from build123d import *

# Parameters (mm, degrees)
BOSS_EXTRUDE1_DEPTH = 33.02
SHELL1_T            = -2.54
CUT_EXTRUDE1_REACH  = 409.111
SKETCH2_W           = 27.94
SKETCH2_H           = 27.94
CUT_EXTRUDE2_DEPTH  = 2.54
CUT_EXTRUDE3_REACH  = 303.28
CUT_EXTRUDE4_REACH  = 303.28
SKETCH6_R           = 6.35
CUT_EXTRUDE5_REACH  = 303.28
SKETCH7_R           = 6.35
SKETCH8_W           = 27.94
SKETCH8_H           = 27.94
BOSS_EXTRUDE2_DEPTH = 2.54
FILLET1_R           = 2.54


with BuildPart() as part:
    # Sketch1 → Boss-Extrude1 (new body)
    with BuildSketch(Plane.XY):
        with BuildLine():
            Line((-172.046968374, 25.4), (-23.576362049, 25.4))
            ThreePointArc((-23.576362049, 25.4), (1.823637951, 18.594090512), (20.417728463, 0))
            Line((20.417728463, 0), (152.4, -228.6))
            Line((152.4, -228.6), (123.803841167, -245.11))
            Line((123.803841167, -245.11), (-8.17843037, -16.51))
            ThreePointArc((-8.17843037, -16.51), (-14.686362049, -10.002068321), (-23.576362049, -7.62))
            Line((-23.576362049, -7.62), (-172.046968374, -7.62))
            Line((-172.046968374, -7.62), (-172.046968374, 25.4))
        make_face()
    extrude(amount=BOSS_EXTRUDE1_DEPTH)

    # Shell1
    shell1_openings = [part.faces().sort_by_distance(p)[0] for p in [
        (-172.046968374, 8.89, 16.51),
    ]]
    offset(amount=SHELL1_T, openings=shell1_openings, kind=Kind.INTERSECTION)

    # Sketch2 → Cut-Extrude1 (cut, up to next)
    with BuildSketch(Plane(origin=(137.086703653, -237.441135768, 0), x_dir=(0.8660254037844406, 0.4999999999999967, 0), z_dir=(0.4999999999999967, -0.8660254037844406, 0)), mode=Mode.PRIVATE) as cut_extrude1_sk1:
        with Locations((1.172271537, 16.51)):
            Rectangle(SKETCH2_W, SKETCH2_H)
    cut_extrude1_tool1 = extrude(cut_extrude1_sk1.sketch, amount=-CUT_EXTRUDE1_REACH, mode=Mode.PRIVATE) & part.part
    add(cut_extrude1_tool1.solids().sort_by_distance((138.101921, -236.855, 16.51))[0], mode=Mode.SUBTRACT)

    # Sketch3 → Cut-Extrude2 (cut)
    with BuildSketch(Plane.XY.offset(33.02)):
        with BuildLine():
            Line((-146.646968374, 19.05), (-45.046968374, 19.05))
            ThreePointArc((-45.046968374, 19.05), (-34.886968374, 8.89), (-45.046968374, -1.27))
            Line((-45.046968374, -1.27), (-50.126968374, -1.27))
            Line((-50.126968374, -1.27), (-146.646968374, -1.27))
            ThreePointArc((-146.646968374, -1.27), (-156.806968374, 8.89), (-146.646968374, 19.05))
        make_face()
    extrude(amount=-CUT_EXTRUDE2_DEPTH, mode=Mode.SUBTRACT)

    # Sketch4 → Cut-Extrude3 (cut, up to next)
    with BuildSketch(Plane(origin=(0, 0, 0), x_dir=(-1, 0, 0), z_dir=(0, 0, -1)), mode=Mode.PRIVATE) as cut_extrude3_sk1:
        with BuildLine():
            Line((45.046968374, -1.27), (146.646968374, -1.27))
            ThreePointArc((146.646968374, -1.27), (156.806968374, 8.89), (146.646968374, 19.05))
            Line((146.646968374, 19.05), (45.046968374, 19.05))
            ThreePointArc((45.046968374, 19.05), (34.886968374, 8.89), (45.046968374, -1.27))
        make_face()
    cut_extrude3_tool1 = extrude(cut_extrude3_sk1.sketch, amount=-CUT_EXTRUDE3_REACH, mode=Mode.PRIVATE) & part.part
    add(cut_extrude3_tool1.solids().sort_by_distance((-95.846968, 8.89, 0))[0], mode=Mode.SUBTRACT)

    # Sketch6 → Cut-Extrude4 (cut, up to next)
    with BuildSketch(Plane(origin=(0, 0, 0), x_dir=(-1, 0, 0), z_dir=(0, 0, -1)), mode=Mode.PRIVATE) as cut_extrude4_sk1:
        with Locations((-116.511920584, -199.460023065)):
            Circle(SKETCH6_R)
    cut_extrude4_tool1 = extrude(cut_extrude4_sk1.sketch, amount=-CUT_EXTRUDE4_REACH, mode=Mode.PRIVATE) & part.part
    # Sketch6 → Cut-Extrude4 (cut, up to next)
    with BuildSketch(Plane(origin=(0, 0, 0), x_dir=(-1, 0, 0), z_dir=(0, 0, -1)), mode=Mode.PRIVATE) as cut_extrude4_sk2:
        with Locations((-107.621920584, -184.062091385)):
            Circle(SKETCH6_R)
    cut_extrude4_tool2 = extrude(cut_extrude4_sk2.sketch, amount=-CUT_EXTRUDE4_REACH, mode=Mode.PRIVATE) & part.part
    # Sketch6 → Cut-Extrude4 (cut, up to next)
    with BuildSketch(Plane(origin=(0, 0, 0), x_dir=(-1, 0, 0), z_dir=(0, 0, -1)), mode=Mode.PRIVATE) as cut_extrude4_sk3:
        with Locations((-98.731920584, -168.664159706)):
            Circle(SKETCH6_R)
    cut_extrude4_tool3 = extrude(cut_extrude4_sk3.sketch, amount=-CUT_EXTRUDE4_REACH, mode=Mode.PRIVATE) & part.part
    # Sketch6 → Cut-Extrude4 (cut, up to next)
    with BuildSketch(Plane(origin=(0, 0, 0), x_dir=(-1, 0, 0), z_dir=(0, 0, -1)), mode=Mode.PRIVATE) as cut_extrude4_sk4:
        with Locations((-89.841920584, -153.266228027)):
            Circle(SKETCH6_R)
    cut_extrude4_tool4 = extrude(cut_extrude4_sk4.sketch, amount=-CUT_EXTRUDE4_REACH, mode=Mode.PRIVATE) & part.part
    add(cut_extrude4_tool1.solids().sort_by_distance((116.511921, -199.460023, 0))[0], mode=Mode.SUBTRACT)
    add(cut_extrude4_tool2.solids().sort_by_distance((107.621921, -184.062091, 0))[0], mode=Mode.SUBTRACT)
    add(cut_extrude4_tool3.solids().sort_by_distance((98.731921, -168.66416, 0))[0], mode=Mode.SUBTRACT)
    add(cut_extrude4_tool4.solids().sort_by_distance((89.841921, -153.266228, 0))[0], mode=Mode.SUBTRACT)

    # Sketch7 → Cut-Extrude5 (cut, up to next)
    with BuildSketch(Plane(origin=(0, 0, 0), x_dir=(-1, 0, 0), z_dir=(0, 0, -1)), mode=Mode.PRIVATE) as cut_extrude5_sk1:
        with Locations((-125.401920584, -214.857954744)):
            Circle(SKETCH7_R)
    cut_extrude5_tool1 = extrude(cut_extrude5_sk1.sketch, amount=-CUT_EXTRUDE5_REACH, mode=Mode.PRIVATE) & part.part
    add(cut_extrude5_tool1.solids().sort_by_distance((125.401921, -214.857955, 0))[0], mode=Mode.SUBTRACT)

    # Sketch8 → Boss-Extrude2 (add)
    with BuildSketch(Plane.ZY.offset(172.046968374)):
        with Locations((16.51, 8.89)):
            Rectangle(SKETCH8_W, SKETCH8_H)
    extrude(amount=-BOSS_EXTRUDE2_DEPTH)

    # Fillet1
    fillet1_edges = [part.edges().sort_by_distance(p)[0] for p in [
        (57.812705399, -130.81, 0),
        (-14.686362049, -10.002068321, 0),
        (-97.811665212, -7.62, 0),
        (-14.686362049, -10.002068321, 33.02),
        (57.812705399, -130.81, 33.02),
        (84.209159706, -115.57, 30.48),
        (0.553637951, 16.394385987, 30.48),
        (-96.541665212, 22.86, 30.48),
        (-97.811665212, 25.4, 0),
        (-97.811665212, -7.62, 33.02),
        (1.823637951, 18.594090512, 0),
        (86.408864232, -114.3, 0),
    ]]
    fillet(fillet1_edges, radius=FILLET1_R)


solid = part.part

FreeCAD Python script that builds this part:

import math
import FreeCAD as App
import Part
import Sketcher
Q = App.Units.Quantity


def edges_at(feature, points):
    """Names of the edges that pass closest to the given points."""
    edges = feature.Shape.Edges
    near = lambda p: min(range(len(edges)), key=lambda i: edges[i].distToShape(Part.Vertex(*p))[0])
    return sorted({f"Edge{near(p) + 1}" for p in points})


def faces_at(feature, points):
    """Names of the faces that lie closest to the given points."""
    faces = feature.Shape.Faces
    near = lambda p: min(range(len(faces)), key=lambda i: faces[i].distToShape(Part.Vertex(*p))[0])
    return sorted({f"Face{near(p) + 1}" for p in points})

doc = App.newDocument("Part")
params = doc.addObject("Spreadsheet::Sheet", "Params")
for row, (alias, value) in enumerate([
    ("sketch1_radius", "2 in"),
    ("sketch1_radius2", "0.7 in"),
    ("pad1_length", "1.3 in"),
    ("thickness_wall", "0.1 in"),
    ("sketch2_width", "1.1 in"),
    ("sketch3_radius", "0.4 in"),
    ("sketch3_width", "4 in"),
    ("pocket2_length", "0.1 in"),
    ("sketch4_radius", "0.4 in"),
    ("sketch4_width", "4 in"),
    ("sketch5_diameter", "0.5 in"),
    ("sketch6_diameter", "0.5 in"),
    ("sketch7_diameter", "0.5 in"),
    ("sketch8_diameter", "0.5 in"),
    ("sketch9_diameter", "0.5 in"),
    ("sketch10_width", "1.1 in"),
    ("pad2_length", "0.1 in"),
    ("fillet_radius", "0.1 in"),
], start=1):
    params.set(f"A{row}", alias)
    params.set(f"B{row}", "=" + value)
    params.setAlias(f"B{row}", alias)

body = doc.addObject("PartDesign::Body", "Body")

# Sketch on XY plane
sketch1 = body.newObject("Sketcher::SketchObject", "Sketch")
sketch1.AttachmentSupport = (doc.getObject("XY_Plane"), [""])
sketch1.MapMode = "FlatFace"
sketch1.addGeometry(Part.LineSegment(App.Vector(-24, 25, 0), App.Vector(-172, 25, 0)), False)
sketch1.addGeometry(Part.LineSegment(App.Vector(-172, 25, 0), App.Vector(-172, -8, 0)), False)
sketch1.addGeometry(Part.LineSegment(App.Vector(-172, -8, 0), App.Vector(-24, -8, 0)), False)
sketch1.addGeometry(Part.ArcOfCircle(Part.Circle(App.Vector(-24, -25, 0), App.Vector(0, 0, 1), 18), math.radians(30), math.radians(90)), False)
sketch1.addGeometry(Part.LineSegment(App.Vector(-8, -17, 0), App.Vector(124, -245, 0)), False)
sketch1.addGeometry(Part.LineSegment(App.Vector(124, -245, 0), App.Vector(152, -229, 0)), False)
sketch1.addGeometry(Part.LineSegment(App.Vector(152, -229, 0), App.Vector(20, 0, 0)), False)
sketch1.addGeometry(Part.ArcOfCircle(Part.Circle(App.Vector(-24, -25, 0), App.Vector(0, 0, 1), 51), math.radians(30), math.radians(90)), False)
sketch1.addConstraint(Sketcher.Constraint("Coincident", 0, 2, 1, 1))
sketch1.addConstraint(Sketcher.Constraint("Coincident", 1, 2, 2, 1))
sketch1.addConstraint(Sketcher.Constraint("Tangent", 2, 2, 3, 2))
sketch1.addConstraint(Sketcher.Constraint("Tangent", 3, 1, 4, 1))
sketch1.addConstraint(Sketcher.Constraint("Coincident", 4, 2, 5, 1))
sketch1.addConstraint(Sketcher.Constraint("Coincident", 5, 2, 6, 1))
sketch1.addConstraint(Sketcher.Constraint("Tangent", 6, 2, 7, 1))
sketch1.addConstraint(Sketcher.Constraint("Tangent", 7, 2, 0, 1))
sketch1.addConstraint(Sketcher.Constraint("Horizontal", 0))
sketch1.addConstraint(Sketcher.Constraint("Vertical", 1))
sketch1.addConstraint(Sketcher.Constraint("Horizontal", 2))
sketch1.addConstraint(Sketcher.Constraint("Coincident", 7, 3, 3, 3))
sketch1.addConstraint(Sketcher.Constraint("PointOnObject", 6, 2, -1))
sketch1.addConstraint(Sketcher.Constraint("Perpendicular", 4, 5))
sketch1.addConstraint(Sketcher.Constraint("Perpendicular", 5, 6))
sketch1.addConstraint(Sketcher.Constraint("Radius", 7, Q("2 in")))
sketch1.addConstraint(Sketcher.Constraint("Radius", 3, Q("0.7 in")))
sketch1.addConstraint(Sketcher.Constraint("DistanceY", 3, 3, -1, 1, Q("1 in")))
sketch1.addConstraint(Sketcher.Constraint("DistanceX", -1, 1, 5, 2, Q("6 in")))
sketch1.addConstraint(Sketcher.Constraint("DistanceY", 5, 2, -1, 1, Q("9 in")))
sketch1.addConstraint(Sketcher.Constraint("DistanceX", 0, 2, 0, 1, Q("148.470606 mm")))
sketch1.setExpression("Constraints[15]", "Params.sketch1_radius")
sketch1.setExpression("Constraints[16]", "Params.sketch1_radius2")
pad1 = body.newObject("PartDesign::Pad", "Pad")
pad1.Profile = sketch1
pad1.setExpression("Length", "Params.pad1_length")
doc.recompute()

thickness = body.newObject("PartDesign::Thickness", "Thickness")
thickness.Base = (pad1, faces_at(pad1, [(-172.047, 8.89, 16.51)]))
thickness.setExpression("Value", "Params.thickness_wall")
thickness.Reversed = True
thickness.Join = "Intersection"

# Sketch on an angled plane
sketch2 = body.newObject("Sketcher::SketchObject", "Sketch001")
sketch2.Placement = App.Placement(App.Vector(137.086704, -237.441136, 0), App.Rotation(App.Vector(0.866025404, 0.5, 0), App.Vector(0, 0, 1), App.Vector(0.5, -0.866025404, 0), "ZXY"))
sketch2.addGeometry(Part.LineSegment(App.Vector(-13, 30, 0), App.Vector(-13, 3, 0)), False)
sketch2.addGeometry(Part.LineSegment(App.Vector(-13, 3, 0), App.Vector(15, 3, 0)), False)
sketch2.addGeometry(Part.LineSegment(App.Vector(15, 3, 0), App.Vector(15, 30, 0)), False)
sketch2.addGeometry(Part.LineSegment(App.Vector(15, 30, 0), App.Vector(-13, 30, 0)), False)
sketch2.addConstraint(Sketcher.Constraint("Coincident", 0, 2, 1, 1))
sketch2.addConstraint(Sketcher.Constraint("Coincident", 1, 2, 2, 1))
sketch2.addConstraint(Sketcher.Constraint("Coincident", 2, 2, 3, 1))
sketch2.addConstraint(Sketcher.Constraint("Coincident", 3, 2, 0, 1))
sketch2.addConstraint(Sketcher.Constraint("Vertical", 0))
sketch2.addConstraint(Sketcher.Constraint("Horizontal", 1))
sketch2.addConstraint(Sketcher.Constraint("Vertical", 2))
sketch2.addConstraint(Sketcher.Constraint("Horizontal", 3))
sketch2.addConstraint(Sketcher.Constraint("Equal", 3, 0))
sketch2.addConstraint(Sketcher.Constraint("DistanceX", 1, 1, 1, 2, Q("1.1 in")))
sketch2.addConstraint(Sketcher.Constraint("DistanceY", -1, 1, 0, 2, Q("0.1 in")))
sketch2.addConstraint(Sketcher.Constraint("DistanceX", 0, 2, -1, 1, Q("12.797728 mm")))
sketch2.setExpression("Constraints[9]", "Params.sketch2_width")
pocket1 = body.newObject("PartDesign::Pocket", "Pocket")
pocket1.Profile = sketch2
pocket1.Type = "UpToFirst"

# Sketch on XY plane
sketch3 = body.newObject("Sketcher::SketchObject", "Sketch002")
sketch3.AttachmentSupport = (doc.getObject("XY_Plane"), [""])
sketch3.MapMode = "FlatFace"
sketch3.AttachmentOffset = App.Placement(App.Vector(0, 0, 1.3 * 25.4), App.Rotation())
sketch3.addGeometry(Part.LineSegment(App.Vector(-45, 19, 0), App.Vector(-147, 19, 0)), False)
sketch3.addGeometry(Part.ArcOfCircle(Part.Circle(App.Vector(-147, 9, 0), App.Vector(0, 0, 1), 10), math.radians(90), math.radians(270)), False)
sketch3.addGeometry(Part.LineSegment(App.Vector(-147, -1, 0), App.Vector(-45, -1, 0)), False)
sketch3.addGeometry(Part.ArcOfCircle(Part.Circle(App.Vector(-45, 9, 0), App.Vector(0, 0, 1), 10), math.radians(-90), math.radians(90)), False)
sketch3.addConstraint(Sketcher.Constraint("Tangent", 0, 2, 1, 1))
sketch3.addConstraint(Sketcher.Constraint("Tangent", 1, 2, 2, 1))
sketch3.addConstraint(Sketcher.Constraint("Tangent", 2, 2, 3, 1))
sketch3.addConstraint(Sketcher.Constraint("Tangent", 3, 2, 0, 1))
sketch3.addConstraint(Sketcher.Constraint("Horizontal", 0))
sketch3.addConstraint(Sketcher.Constraint("Horizontal", 2))
sketch3.addConstraint(Sketcher.Constraint("Radius", 1, Q("0.4 in")))
sketch3.addConstraint(Sketcher.Constraint("DistanceX", 0, 2, 0, 1, Q("4 in")))
sketch3.addConstraint(Sketcher.Constraint("DistanceY", -1, 1, 1, 3, Q("0.35 in")))
sketch3.addConstraint(Sketcher.Constraint("DistanceX", 1, 3, -1, 1, Q("146.646968 mm")))
sketch3.setExpression("Constraints[6]", "Params.sketch3_radius")
sketch3.setExpression("Constraints[7]", "Params.sketch3_width")
pocket2 = body.newObject("PartDesign::Pocket", "Pocket001")
pocket2.Profile = sketch3
pocket2.setExpression("Length", "Params.pocket2_length")

# Sketch on XY plane
sketch4 = body.newObject("Sketcher::SketchObject", "Sketch003")
sketch4.AttachmentSupport = (doc.getObject("XY_Plane"), [""])
sketch4.MapMode = "FlatFace"
sketch4.addGeometry(Part.LineSegment(App.Vector(-45, -1, 0), App.Vector(-147, -1, 0)), False)
sketch4.addGeometry(Part.ArcOfCircle(Part.Circle(App.Vector(-147, 9, 0), App.Vector(0, 0, 1), 10), math.radians(90), math.radians(270)), False)
sketch4.addGeometry(Part.LineSegment(App.Vector(-147, 19, 0), App.Vector(-45, 19, 0)), False)
sketch4.addGeometry(Part.ArcOfCircle(Part.Circle(App.Vector(-45, 9, 0), App.Vector(0, 0, 1), 10), math.radians(-90), math.radians(90)), False)
sketch4.addConstraint(Sketcher.Constraint("Tangent", 0, 2, 1, 2))
sketch4.addConstraint(Sketcher.Constraint("Tangent", 1, 1, 2, 1))
sketch4.addConstraint(Sketcher.Constraint("Tangent", 2, 2, 3, 2))
sketch4.addConstraint(Sketcher.Constraint("Tangent", 3, 1, 0, 1))
sketch4.addConstraint(Sketcher.Constraint("Horizontal", 0))
sketch4.addConstraint(Sketcher.Constraint("Horizontal", 2))
sketch4.addConstraint(Sketcher.Constraint("Radius", 1, Q("0.4 in")))
sketch4.addConstraint(Sketcher.Constraint("DistanceX", 0, 2, 0, 1, Q("4 in")))
sketch4.addConstraint(Sketcher.Constraint("DistanceY", -1, 1, 1, 3, Q("0.35 in")))
sketch4.addConstraint(Sketcher.Constraint("DistanceX", 1, 3, -1, 1, Q("146.646968 mm")))
sketch4.setExpression("Constraints[6]", "Params.sketch4_radius")
sketch4.setExpression("Constraints[7]", "Params.sketch4_width")
pocket3 = body.newObject("PartDesign::Pocket", "Pocket002")
pocket3.Profile = sketch4
pocket3.Type = "UpToFirst"
pocket3.Reversed = True

# Sketch on XY plane
sketch5 = body.newObject("Sketcher::SketchObject", "Sketch004")
sketch5.AttachmentSupport = (doc.getObject("XY_Plane"), [""])
sketch5.MapMode = "FlatFace"
sketch5.addGeometry(Part.Circle(App.Vector(117, -199, 0), App.Vector(0, 0, 1), 6), False)
sketch5.addConstraint(Sketcher.Constraint("Diameter", 0, Q("0.5 in")))
sketch5.addConstraint(Sketcher.Constraint("DistanceX", -1, 1, 0, 3, Q("116.511921 mm")))
sketch5.addConstraint(Sketcher.Constraint("DistanceY", 0, 3, -1, 1, Q("199.460023 mm")))
sketch5.setExpression("Constraints[0]", "Params.sketch5_diameter")
pocket4 = body.newObject("PartDesign::Pocket", "Pocket003")
pocket4.Profile = sketch5
pocket4.Type = "UpToFirst"
pocket4.Reversed = True

# Sketch on XY plane
sketch6 = body.newObject("Sketcher::SketchObject", "Sketch005")
sketch6.AttachmentSupport = (doc.getObject("XY_Plane"), [""])
sketch6.MapMode = "FlatFace"
sketch6.addGeometry(Part.Circle(App.Vector(108, -184, 0), App.Vector(0, 0, 1), 6), False)
sketch6.addConstraint(Sketcher.Constraint("Diameter", 0, Q("0.5 in")))
sketch6.addConstraint(Sketcher.Constraint("DistanceX", -1, 1, 0, 3, Q("107.621921 mm")))
sketch6.addConstraint(Sketcher.Constraint("DistanceY", 0, 3, -1, 1, Q("184.062091 mm")))
sketch6.setExpression("Constraints[0]", "Params.sketch6_diameter")
pocket5 = body.newObject("PartDesign::Pocket", "Pocket004")
pocket5.Profile = sketch6
pocket5.Type = "UpToFirst"
pocket5.Reversed = True

# Sketch on XY plane
sketch7 = body.newObject("Sketcher::SketchObject", "Sketch006")
sketch7.AttachmentSupport = (doc.getObject("XY_Plane"), [""])
sketch7.MapMode = "FlatFace"
sketch7.addGeometry(Part.Circle(App.Vector(99, -169, 0), App.Vector(0, 0, 1), 6), False)
sketch7.addConstraint(Sketcher.Constraint("Diameter", 0, Q("0.5 in")))
sketch7.addConstraint(Sketcher.Constraint("DistanceX", -1, 1, 0, 3, Q("98.731921 mm")))
sketch7.addConstraint(Sketcher.Constraint("DistanceY", 0, 3, -1, 1, Q("168.66416 mm")))
sketch7.setExpression("Constraints[0]", "Params.sketch7_diameter")
pocket6 = body.newObject("PartDesign::Pocket", "Pocket005")
pocket6.Profile = sketch7
pocket6.Type = "UpToFirst"
pocket6.Reversed = True

# Sketch on XY plane
sketch8 = body.newObject("Sketcher::SketchObject", "Sketch007")
sketch8.AttachmentSupport = (doc.getObject("XY_Plane"), [""])
sketch8.MapMode = "FlatFace"
sketch8.addGeometry(Part.Circle(App.Vector(90, -153, 0), App.Vector(0, 0, 1), 6), False)
sketch8.addConstraint(Sketcher.Constraint("Diameter", 0, Q("0.5 in")))
sketch8.addConstraint(Sketcher.Constraint("DistanceX", -1, 1, 0, 3, Q("89.841921 mm")))
sketch8.addConstraint(Sketcher.Constraint("DistanceY", 0, 3, -1, 1, Q("153.266228 mm")))
sketch8.setExpression("Constraints[0]", "Params.sketch8_diameter")
pocket7 = body.newObject("PartDesign::Pocket", "Pocket006")
pocket7.Profile = sketch8
pocket7.Type = "UpToFirst"
pocket7.Reversed = True

# Sketch on XY plane
sketch9 = body.newObject("Sketcher::SketchObject", "Sketch008")
sketch9.AttachmentSupport = (doc.getObject("XY_Plane"), [""])
sketch9.MapMode = "FlatFace"
sketch9.addGeometry(Part.Circle(App.Vector(125, -215, 0), App.Vector(0, 0, 1), 6), False)
sketch9.addConstraint(Sketcher.Constraint("Diameter", 0, Q("0.5 in")))
sketch9.addConstraint(Sketcher.Constraint("DistanceX", -1, 1, 0, 3, Q("125.401921 mm")))
sketch9.addConstraint(Sketcher.Constraint("DistanceY", 0, 3, -1, 1, Q("214.857955 mm")))
sketch9.setExpression("Constraints[0]", "Params.sketch9_diameter")
pocket8 = body.newObject("PartDesign::Pocket", "Pocket007")
pocket8.Profile = sketch9
pocket8.Type = "UpToFirst"
pocket8.Reversed = True

# Sketch on YZ plane
sketch10 = body.newObject("Sketcher::SketchObject", "Sketch009")
sketch10.AttachmentSupport = (doc.getObject("YZ_Plane"), [""])
sketch10.MapMode = "FlatFace"
sketch10.AttachmentOffset = App.Placement(App.Vector(0, 0, -172.046968), App.Rotation())
sketch10.addGeometry(Part.LineSegment(App.Vector(23, 3, 0), App.Vector(-5, 3, 0)), False)
sketch10.addGeometry(Part.LineSegment(App.Vector(-5, 3, 0), App.Vector(-5, 30, 0)), False)
sketch10.addGeometry(Part.LineSegment(App.Vector(-5, 30, 0), App.Vector(23, 30, 0)), False)
sketch10.addGeometry(Part.LineSegment(App.Vector(23, 30, 0), App.Vector(23, 3, 0)), False)
sketch10.addConstraint(Sketcher.Constraint("Coincident", 0, 2, 1, 1))
sketch10.addConstraint(Sketcher.Constraint("Coincident", 1, 2, 2, 1))
sketch10.addConstraint(Sketcher.Constraint("Coincident", 2, 2, 3, 1))
sketch10.addConstraint(Sketcher.Constraint("Coincident", 3, 2, 0, 1))
sketch10.addConstraint(Sketcher.Constraint("Horizontal", 0))
sketch10.addConstraint(Sketcher.Constraint("Vertical", 1))
sketch10.addConstraint(Sketcher.Constraint("Horizontal", 2))
sketch10.addConstraint(Sketcher.Constraint("Vertical", 3))
sketch10.addConstraint(Sketcher.Constraint("Equal", 2, 1))
sketch10.addConstraint(Sketcher.Constraint("DistanceX", 0, 2, 0, 1, Q("1.1 in")))
sketch10.addConstraint(Sketcher.Constraint("DistanceX", 0, 2, -1, 1, Q("0.2 in")))
sketch10.addConstraint(Sketcher.Constraint("DistanceY", -1, 1, 0, 2, Q("0.1 in")))
sketch10.setExpression("Constraints[9]", "Params.sketch10_width")
pad2 = body.newObject("PartDesign::Pad", "Pad001")
pad2.Profile = sketch10
pad2.setExpression("Length", "Params.pad2_length")
doc.recompute()

fillet = body.newObject("PartDesign::Fillet", "Fillet")
fillet.Base = (pad2, edges_at(pad2, [
    (57.813, -130.81, 0),
    (-14.686, -10.002, 0),
    (-97.812, -7.62, 0),
    (-14.686, -10.002, 33.02),
    (57.813, -130.81, 33.02),
    (83.574, -114.47, 30.48),
    (0.554, 16.394, 30.48),
    (-96.542, 22.86, 30.48),
    (-97.812, 25.4, 0),
    (-97.812, -7.62, 33.02),
    (1.824, 18.594, 0),
    (86.409, -114.3, 0),
]))
fillet.setExpression("Radius", "Params.fillet_radius")

doc.recompute()
